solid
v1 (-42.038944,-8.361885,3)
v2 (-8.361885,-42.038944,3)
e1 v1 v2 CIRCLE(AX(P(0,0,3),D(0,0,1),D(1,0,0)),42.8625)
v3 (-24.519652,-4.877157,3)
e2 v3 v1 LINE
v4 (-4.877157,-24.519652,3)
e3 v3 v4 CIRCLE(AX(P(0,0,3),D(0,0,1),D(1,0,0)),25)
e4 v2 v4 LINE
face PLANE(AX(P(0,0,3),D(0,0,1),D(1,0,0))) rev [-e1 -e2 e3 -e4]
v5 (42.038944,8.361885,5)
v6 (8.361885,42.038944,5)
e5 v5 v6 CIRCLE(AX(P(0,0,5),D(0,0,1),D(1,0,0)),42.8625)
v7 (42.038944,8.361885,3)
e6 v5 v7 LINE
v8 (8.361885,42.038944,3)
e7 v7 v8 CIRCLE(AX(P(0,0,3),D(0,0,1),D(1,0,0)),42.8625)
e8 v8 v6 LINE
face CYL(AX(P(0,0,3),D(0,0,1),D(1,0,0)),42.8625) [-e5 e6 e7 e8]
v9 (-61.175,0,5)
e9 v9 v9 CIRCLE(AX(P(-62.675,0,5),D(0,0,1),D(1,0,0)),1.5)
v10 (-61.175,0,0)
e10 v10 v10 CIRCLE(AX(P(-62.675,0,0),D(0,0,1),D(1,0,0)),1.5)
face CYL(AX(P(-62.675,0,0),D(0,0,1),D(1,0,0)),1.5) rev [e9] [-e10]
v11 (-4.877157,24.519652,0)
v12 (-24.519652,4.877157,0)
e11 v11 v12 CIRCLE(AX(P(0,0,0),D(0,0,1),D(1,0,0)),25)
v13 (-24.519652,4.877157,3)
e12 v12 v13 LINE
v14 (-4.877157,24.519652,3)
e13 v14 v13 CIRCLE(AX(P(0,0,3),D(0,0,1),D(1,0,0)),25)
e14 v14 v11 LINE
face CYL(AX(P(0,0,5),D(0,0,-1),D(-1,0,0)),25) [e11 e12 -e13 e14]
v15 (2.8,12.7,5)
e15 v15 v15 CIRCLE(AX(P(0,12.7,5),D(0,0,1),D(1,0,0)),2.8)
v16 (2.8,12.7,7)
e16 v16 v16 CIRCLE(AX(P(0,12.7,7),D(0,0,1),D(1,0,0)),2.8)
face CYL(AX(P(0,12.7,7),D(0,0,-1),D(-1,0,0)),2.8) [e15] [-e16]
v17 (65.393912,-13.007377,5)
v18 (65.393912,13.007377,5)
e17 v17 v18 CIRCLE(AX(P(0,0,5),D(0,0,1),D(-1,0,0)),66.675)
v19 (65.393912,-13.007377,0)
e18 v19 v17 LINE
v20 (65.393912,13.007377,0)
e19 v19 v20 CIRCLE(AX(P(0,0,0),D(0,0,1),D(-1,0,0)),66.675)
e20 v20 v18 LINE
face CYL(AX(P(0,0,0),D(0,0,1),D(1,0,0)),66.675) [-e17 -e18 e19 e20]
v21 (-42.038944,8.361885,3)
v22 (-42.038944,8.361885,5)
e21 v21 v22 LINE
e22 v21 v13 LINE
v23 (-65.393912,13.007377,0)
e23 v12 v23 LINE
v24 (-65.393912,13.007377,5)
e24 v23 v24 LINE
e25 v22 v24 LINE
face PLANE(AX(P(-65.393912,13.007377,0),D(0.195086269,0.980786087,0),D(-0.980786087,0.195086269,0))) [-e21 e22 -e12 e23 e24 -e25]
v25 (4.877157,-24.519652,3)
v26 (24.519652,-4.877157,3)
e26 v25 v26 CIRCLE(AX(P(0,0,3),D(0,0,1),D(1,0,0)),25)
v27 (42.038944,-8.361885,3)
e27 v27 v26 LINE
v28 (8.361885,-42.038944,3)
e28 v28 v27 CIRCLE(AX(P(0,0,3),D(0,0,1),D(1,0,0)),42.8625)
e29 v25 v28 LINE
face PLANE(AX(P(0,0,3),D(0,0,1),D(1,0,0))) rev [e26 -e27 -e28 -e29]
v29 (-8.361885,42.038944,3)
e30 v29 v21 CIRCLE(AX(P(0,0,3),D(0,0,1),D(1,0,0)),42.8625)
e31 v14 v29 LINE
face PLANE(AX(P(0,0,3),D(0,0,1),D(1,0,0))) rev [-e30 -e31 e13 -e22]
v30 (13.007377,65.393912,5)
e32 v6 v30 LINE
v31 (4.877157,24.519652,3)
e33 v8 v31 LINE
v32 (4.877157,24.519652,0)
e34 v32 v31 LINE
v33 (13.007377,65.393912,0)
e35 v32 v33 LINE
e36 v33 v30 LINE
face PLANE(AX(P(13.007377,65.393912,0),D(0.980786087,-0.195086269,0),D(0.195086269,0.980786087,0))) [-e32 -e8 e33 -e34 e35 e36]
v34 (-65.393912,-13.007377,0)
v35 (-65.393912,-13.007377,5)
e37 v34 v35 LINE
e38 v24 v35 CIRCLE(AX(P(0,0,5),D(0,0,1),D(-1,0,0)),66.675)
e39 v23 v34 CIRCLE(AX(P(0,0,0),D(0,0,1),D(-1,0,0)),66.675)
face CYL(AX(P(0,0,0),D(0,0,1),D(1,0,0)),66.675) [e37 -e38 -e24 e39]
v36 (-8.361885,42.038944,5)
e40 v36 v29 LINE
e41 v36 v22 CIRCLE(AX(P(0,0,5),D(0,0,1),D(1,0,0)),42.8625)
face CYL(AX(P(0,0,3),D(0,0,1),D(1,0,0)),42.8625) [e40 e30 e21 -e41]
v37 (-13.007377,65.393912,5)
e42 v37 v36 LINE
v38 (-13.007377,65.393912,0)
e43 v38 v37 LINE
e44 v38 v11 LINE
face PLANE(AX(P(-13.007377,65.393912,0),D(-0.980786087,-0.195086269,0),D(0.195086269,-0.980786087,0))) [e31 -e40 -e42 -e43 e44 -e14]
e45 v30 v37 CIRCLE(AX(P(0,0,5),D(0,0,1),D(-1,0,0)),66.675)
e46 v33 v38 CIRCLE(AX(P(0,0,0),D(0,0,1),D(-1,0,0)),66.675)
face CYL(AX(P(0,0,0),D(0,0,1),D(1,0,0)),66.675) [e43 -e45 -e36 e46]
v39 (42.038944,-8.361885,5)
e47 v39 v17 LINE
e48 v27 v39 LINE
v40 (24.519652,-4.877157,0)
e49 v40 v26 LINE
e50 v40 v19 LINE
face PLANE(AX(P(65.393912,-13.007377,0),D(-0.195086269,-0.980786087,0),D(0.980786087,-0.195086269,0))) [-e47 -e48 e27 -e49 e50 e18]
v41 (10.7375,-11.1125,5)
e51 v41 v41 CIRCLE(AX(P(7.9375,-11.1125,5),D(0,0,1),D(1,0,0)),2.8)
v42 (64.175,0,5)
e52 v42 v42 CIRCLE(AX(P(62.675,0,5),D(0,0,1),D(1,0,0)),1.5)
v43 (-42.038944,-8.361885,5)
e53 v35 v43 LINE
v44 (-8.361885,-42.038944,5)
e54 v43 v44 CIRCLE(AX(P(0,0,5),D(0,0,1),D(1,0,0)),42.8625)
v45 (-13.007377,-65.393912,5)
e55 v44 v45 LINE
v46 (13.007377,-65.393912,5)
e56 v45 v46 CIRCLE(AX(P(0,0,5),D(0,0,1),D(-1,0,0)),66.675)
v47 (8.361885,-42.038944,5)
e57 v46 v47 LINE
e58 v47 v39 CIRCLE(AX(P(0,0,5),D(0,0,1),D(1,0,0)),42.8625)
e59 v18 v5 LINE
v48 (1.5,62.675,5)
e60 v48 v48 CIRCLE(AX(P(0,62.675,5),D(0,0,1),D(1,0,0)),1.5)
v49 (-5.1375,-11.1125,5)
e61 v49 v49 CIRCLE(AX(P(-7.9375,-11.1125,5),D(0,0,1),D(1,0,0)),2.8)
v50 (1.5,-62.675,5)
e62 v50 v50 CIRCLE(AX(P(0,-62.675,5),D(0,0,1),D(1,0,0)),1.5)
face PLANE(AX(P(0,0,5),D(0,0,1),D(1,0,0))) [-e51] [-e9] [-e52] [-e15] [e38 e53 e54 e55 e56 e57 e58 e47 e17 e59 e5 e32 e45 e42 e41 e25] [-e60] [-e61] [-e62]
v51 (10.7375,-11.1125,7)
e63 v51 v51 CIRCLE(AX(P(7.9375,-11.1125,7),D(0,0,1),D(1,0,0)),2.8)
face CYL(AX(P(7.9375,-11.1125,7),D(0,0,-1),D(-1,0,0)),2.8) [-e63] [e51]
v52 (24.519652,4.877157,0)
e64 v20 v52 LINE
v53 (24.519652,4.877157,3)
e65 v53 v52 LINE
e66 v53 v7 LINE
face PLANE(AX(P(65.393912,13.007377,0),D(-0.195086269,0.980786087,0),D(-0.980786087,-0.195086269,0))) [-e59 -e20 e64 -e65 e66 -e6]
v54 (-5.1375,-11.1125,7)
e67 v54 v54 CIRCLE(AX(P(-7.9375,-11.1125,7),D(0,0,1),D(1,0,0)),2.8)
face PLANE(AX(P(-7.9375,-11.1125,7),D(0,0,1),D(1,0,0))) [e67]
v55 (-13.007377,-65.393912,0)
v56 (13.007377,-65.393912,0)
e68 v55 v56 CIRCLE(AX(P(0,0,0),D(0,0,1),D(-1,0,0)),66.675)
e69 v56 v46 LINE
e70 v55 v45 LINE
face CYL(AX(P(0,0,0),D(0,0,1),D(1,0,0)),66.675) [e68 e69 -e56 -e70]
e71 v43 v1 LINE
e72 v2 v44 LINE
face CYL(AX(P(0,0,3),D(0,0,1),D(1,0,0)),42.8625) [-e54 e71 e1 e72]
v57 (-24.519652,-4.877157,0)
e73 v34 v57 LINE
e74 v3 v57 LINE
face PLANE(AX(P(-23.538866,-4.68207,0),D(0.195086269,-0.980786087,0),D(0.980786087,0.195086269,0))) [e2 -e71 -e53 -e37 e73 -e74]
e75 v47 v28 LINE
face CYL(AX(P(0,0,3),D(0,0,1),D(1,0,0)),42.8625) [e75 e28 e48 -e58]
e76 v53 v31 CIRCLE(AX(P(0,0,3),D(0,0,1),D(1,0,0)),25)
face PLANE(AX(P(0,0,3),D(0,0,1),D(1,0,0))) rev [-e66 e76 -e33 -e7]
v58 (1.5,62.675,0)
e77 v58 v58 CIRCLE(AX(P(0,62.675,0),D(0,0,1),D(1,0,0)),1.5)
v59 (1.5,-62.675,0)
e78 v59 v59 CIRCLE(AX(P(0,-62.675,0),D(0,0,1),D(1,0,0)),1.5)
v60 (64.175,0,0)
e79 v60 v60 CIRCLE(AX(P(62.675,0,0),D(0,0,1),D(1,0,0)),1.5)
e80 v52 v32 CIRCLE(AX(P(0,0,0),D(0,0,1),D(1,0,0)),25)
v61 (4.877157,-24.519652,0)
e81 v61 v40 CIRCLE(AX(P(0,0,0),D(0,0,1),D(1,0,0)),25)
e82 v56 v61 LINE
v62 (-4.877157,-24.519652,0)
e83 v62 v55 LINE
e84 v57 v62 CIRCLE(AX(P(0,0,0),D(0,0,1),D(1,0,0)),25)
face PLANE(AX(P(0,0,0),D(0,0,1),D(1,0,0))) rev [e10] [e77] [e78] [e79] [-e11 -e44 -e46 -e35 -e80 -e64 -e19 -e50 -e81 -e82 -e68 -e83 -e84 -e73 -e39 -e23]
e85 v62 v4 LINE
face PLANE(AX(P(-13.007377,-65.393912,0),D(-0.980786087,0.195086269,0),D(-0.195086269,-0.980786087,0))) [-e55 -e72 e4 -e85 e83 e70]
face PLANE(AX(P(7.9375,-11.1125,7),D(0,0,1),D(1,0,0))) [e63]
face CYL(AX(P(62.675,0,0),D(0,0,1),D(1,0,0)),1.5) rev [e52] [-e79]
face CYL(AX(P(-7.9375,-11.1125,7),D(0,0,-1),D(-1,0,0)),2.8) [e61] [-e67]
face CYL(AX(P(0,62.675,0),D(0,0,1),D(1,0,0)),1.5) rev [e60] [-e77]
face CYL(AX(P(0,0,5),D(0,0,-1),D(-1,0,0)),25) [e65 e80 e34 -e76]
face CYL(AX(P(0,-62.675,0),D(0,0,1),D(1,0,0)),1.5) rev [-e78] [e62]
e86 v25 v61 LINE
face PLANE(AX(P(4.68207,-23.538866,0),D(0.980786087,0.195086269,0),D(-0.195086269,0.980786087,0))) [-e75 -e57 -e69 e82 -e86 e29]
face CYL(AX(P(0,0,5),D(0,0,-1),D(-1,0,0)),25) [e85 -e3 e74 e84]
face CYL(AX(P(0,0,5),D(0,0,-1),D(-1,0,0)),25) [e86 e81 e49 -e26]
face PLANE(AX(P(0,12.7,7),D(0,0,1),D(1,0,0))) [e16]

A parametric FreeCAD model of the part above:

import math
import FreeCAD as App
import Part
import Sketcher

V = App.Vector

doc = App.newDocument("Part")
params = doc.addObject("Spreadsheet::Sheet", "Params")
for row, (alias, value) in enumerate([
    ("sketch1_diameter", "50 mm"),
    ("pad1_length", "5 mm"),
    ("sketch2_diameter", "3 mm"),
    ("sketch2_radius", "24 mm"),
    ("pad2_length", "5 mm"),
    ("sketch3_diameter", "5.6 mm"),
    ("pad3_length", "2 mm"),
    ("pad4_length", "2 mm"),
], start=1):
    params.set(f"A{row}", alias)
    params.set(f"B{row}", "=" + value)
    params.setAlias(f"B{row}", alias)

body = doc.addObject("PartDesign::Body", "Body")

# Sketch on XY plane
sketch1 = doc.addObject("Sketcher::SketchObject", "Sketch")
body.addObject(sketch1)
sketch1.AttachmentSupport = (doc.XY_Plane, [""])
sketch1.MapMode = "FlatFace"
sketch1.addGeometry(Part.Circle(V(0, 0, 0), V(0, 0, 1), 25), False)
sketch1.addConstraint([
    Sketcher.Constraint("Coincident", 0, 3, -1, 1),
    Sketcher.Constraint("Diameter", 0, 50.0),
])
sketch1.setExpression("Constraints[1]", "Params.sketch1_diameter")
pad1 = doc.addObject("PartDesign::Pad", "Pad")
body.addObject(pad1)
pad1.Profile = sketch1
pad1.setExpression("Length", "Params.pad1_length")

# Sketch on XY plane
sketch2 = doc.addObject("Sketcher::SketchObject", "Sketch001")
body.addObject(sketch2)
sketch2.AttachmentSupport = (doc.XY_Plane, [""])
sketch2.MapMode = "FlatFace"
sketch2.AttachmentOffset = App.Placement(V(0, 0, 5), App.Rotation())
sketch2.addGeometry([
    Part.LineSegment(V(-13, 65.4, 0), V(-4.7, 23.5, 0)),  # 0
    Part.ArcOfCircle(Part.Circle(V(0, 0, 0), V(0, 0, 1), 24), math.radians(79), math.radians(101)),  # 1
    Part.LineSegment(V(4.7, 23.5, 0), V(13, 65.4, 0)),  # 2
    Part.ArcOfCircle(Part.Circle(V(0, 0, 0), V(0, 0, 1), 66.7), math.radians(79), math.radians(101)),  # 3
    Part.Circle(V(0, 62.7, 0), V(0, 0, 1), 1.5),  # 4
    Part.LineSegment(V(65.4, 13, 0), V(23.5, 4.7, 0)),  # 5
    Part.ArcOfCircle(Part.Circle(V(0, 0, 0), V(0, 0, 1), 24), math.radians(-11), math.radians(11)),  # 6
    Part.LineSegment(V(23.5, -4.7, 0), V(65.4, -13, 0)),  # 7
    Part.ArcOfCircle(Part.Circle(V(0, 0, 0), V(0, 0, 1), 66.7), math.radians(-11), math.radians(11)),  # 8
    Part.Circle(V(62.7, 0, 0), V(0, 0, 1), 1.5),  # 9
    Part.LineSegment(V(13, -65.4, 0), V(4.7, -23.5, 0)),  # 10
    Part.ArcOfCircle(Part.Circle(V(0, 0, 0), V(0, 0, 1), 24), math.radians(-101), math.radians(-79)),  # 11
    Part.LineSegment(V(-4.7, -23.5, 0), V(-13, -65.4, 0)),  # 12
    Part.ArcOfCircle(Part.Circle(V(0, 0, 0), V(0, 0, 1), 66.7), math.radians(-101), math.radians(-79)),  # 13
    Part.Circle(V(0, -62.7, 0), V(0, 0, 1), 1.5),  # 14
    Part.LineSegment(V(-65.4, -13, 0), V(-23.5, -4.7, 0)),  # 15
    Part.ArcOfCircle(Part.Circle(V(0, 0, 0), V(0, 0, 1), 24), math.radians(169), math.radians(191)),  # 16
    Part.LineSegment(V(-23.5, 4.7, 0), V(-65.4, 13, 0)),  # 17
    Part.ArcOfCircle(Part.Circle(V(0, 0, 0), V(0, 0, 1), 66.7), math.radians(169), math.radians(191)),  # 18
    Part.Circle(V(-62.7, 0, 0), V(0, 0, 1), 1.5),  # 19
], False)
sketch2.addConstraint([
    Sketcher.Constraint("Coincident", 0, 2, 1, 2),
    Sketcher.Constraint("Coincident", 1, 1, 2, 1),
    Sketcher.Constraint("Coincident", 2, 2, 3, 1),
    Sketcher.Constraint("Coincident", 3, 2, 0, 1),
    Sketcher.Constraint("Coincident", 5, 2, 6, 2),
    Sketcher.Constraint("Coincident", 6, 1, 7, 1),
    Sketcher.Constraint("Coincident", 7, 2, 8, 1),
    Sketcher.Constraint("Coincident", 8, 2, 5, 1),
    Sketcher.Constraint("Coincident", 10, 2, 11, 2),
    Sketcher.Constraint("Coincident", 11, 1, 12, 1),
    Sketcher.Constraint("Coincident", 12, 2, 13, 1),
    Sketcher.Constraint("Coincident", 13, 2, 10, 1),
    Sketcher.Constraint("Coincident", 15, 2, 16, 2),
    Sketcher.Constraint("Coincident", 16, 1, 17, 1),
    Sketcher.Constraint("Coincident", 17, 2, 18, 1),
    Sketcher.Constraint("Coincident", 18, 2, 15, 1),
    Sketcher.Constraint("Coincident", 1, 3, -1, 1),
    Sketcher.Constraint("Coincident", 3, 3, -1, 1),
    Sketcher.Constraint("Coincident", 6, 3, -1, 1),
    Sketcher.Constraint("Coincident", 8, 3, -1, 1),
    Sketcher.Constraint("Coincident", 11, 3, -1, 1),
    Sketcher.Constraint("Coincident", 13, 3, -1, 1),
    Sketcher.Constraint("Coincident", 16, 3, -1, 1),
    Sketcher.Constraint("Coincident", 18, 3, -1, 1),
    Sketcher.Constraint("Equal", 1, 6),
    Sketcher.Constraint("Equal", 3, 8),
    Sketcher.Constraint("Equal", 4, 9),
    Sketcher.Constraint("Equal", 6, 11),
    Sketcher.Constraint("Equal", 8, 13),
    Sketcher.Constraint("Equal", 9, 14),
    Sketcher.Constraint("Equal", 11, 16),
    Sketcher.Constraint("Equal", 13, 18),
    Sketcher.Constraint("Equal", 14, 19),
    Sketcher.Constraint("Symmetric", 4, 3, 14, 3, -1, 1),
    Sketcher.Constraint("Symmetric", 9, 3, 19, 3, -1, 1),
    Sketcher.Constraint("PointOnObject", 4, 3, -2),
    Sketcher.Constraint("PointOnObject", 9, 3, -1),
    Sketcher.Constraint("Perpendicular", 0, 5),
    Sketcher.Constraint("Perpendicular", 2, 7),
    Sketcher.Constraint("Perpendicular", 5, 10),
    Sketcher.Constraint("Perpendicular", 7, 12),
    Sketcher.Constraint("Perpendicular", 10, 15),
    Sketcher.Constraint("Perpendicular", 12, 17),
    Sketcher.Constraint("Horizontal", 0, 2, 1, 1),
    Sketcher.Constraint("Horizontal", 2, 2, 3, 2),
    Sketcher.Constraint("Horizontal", 10, 2, 11, 1),
    Sketcher.Constraint("Horizontal", 6, 1, 15, 2),
    Sketcher.Constraint("Horizontal", 5, 2, 16, 1),
    Sketcher.Constraint("Vertical", 5, 2, 6, 1),
    Sketcher.Constraint("Vertical", 1, 1, 10, 2),
    Sketcher.Constraint("Diameter", 4, 3.0),
    Sketcher.Constraint("Radius", 1, 24.0),
    Sketcher.Constraint("Radius", 3, 66.675),
    Sketcher.Constraint("DistanceY", -1, 1, 4, 3, 62.675),
    Sketcher.Constraint("DistanceX", -1, 1, 9, 3, 62.675),
    Sketcher.Constraint("DistanceX", 0, 2, -1, 1, 4.68207),
    Sketcher.Constraint("DistanceY", -1, 1, 5, 2, 4.68207),
    Sketcher.Constraint("DistanceX", 1, 1, 8, 2, 60.711842),
])
sketch2.setExpression("Constraints[50]", "Params.sketch2_diameter")
sketch2.setExpression("Constraints[51]", "Params.sketch2_radius")
pad2 = doc.addObject("PartDesign::Pad", "Pad001")
body.addObject(pad2)
pad2.Profile = sketch2
pad2.setExpression("Length", "Params.pad2_length")
pad2.Reversed = True

# Sketch on XY plane
sketch3 = doc.addObject("Sketcher::SketchObject", "Sketch002")
body.addObject(sketch3)
sketch3.AttachmentSupport = (doc.XY_Plane, [""])
sketch3.MapMode = "FlatFace"
sketch3.AttachmentOffset = App.Placement(V(0, 0, 5), App.Rotation())
sketch3.addGeometry([
    Part.Circle(V(-7.9, -11.1, 0), V(0, 0, 1), 2.8),
    Part.Circle(V(7.9, -11.1, 0), V(0, 0, 1), 2.8),
    Part.Circle(V(0, 12.7, 0), V(0, 0, 1), 2.8),
], False)
sketch3.addConstraint([
    Sketcher.Constraint("Equal", 0, 1),
    Sketcher.Constraint("Equal", 1, 2),
    Sketcher.Constraint("Symmetric", 0, 3, 1, 3, -2),
    Sketcher.Constraint("PointOnObject", 2, 3, -2),
    Sketcher.Constraint("Diameter", 0, 5.6),
    Sketcher.Constraint("DistanceY", -1, 1, 2, 3, 12.7),
    Sketcher.Constraint("DistanceX", 0, 3, 1, 3, 15.875),
    Sketcher.Constraint("DistanceY", 0, 3, -1, 1, 11.1125),
])
sketch3.setExpression("Constraints[4]", "Params.sketch3_diameter")
pad3 = doc.addObject("PartDesign::Pad", "Pad002")
body.addObject(pad3)
pad3.Profile = sketch3
pad3.setExpression("Length", "Params.pad3_length")

# Sketch on XY plane
sketch4 = doc.addObject("Sketcher::SketchObject", "Sketch003")
body.addObject(sketch4)
sketch4.AttachmentSupport = (doc.XY_Plane, [""])
sketch4.MapMode = "FlatFace"
sketch4.AttachmentOffset = App.Placement(V(0, 0, 5), App.Rotation())
sketch4.addGeometry([
    Part.Circle(V(0, 0, 0), V(0, 0, 1), 43),
    Part.Circle(V(0, 0, 0), V(0, 0, 1), 24),
], False)
sketch4.addConstraint([
    Sketcher.Constraint("Coincident", 0, 3, -1, 1),
    Sketcher.Constraint("Coincident", 1, 3, -1, 1),
    Sketcher.Constraint("Diameter", 0, 85.725),
    Sketcher.Constraint("Diameter", 1, 47.625),
])
pad4 = doc.addObject("PartDesign::Pad", "Pad003")
body.addObject(pad4)
pad4.Profile = sketch4
pad4.setExpression("Length", "Params.pad4_length")
pad4.Reversed = True

doc.recompute()
